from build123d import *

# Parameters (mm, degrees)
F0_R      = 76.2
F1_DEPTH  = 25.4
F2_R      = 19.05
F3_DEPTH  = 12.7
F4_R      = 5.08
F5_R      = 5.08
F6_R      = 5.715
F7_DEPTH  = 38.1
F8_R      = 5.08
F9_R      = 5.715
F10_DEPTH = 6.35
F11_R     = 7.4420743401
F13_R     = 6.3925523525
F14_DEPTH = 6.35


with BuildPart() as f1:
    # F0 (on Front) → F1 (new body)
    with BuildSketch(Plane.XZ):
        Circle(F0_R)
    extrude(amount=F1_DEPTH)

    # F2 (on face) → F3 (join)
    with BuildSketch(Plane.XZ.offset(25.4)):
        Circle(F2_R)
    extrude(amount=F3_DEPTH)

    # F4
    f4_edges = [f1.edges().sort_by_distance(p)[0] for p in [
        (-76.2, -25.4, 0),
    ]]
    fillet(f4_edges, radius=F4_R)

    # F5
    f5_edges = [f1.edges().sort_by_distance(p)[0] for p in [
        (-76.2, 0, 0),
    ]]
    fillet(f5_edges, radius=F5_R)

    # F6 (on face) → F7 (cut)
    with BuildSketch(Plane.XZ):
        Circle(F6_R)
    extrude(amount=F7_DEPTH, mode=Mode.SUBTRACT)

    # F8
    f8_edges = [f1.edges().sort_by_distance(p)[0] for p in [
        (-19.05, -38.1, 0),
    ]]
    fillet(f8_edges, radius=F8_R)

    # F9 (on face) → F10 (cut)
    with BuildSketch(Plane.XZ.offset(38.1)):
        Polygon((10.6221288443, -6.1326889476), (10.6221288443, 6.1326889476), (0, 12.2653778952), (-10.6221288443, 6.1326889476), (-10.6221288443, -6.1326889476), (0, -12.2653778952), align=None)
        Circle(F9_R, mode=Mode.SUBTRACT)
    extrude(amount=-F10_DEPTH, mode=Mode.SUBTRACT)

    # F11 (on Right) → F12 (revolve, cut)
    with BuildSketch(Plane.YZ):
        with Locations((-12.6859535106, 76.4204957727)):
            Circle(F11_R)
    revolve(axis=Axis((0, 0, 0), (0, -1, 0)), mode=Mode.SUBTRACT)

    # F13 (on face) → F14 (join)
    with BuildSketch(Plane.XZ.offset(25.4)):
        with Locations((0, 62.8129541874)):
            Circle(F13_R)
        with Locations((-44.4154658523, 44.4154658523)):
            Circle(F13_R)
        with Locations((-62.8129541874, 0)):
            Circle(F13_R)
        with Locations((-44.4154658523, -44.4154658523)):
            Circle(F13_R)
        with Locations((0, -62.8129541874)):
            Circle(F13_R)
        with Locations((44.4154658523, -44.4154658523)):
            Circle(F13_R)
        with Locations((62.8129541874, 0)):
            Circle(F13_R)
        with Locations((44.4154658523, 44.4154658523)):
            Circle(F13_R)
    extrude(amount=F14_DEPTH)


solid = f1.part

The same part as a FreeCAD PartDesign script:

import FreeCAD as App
import Part
import Sketcher
Q = App.Units.Quantity


def edges_at(feature, points):
    """Names of the edges that pass closest to the given points."""
    edges = feature.Shape.Edges
    near = lambda p: min(range(len(edges)), key=lambda i: edges[i].distToShape(Part.Vertex(*p))[0])
    return sorted({f"Edge{near(p) + 1}" for p in points})

doc = App.newDocument("Part")
body = doc.addObject("PartDesign::Body", "Body")

# Sketch on XZ plane
sketch1 = body.newObject("Sketcher::SketchObject", "Sketch")
sketch1.AttachmentSupport = (doc.getObject("XZ_Plane"), [""])
sketch1.MapMode = "FlatFace"
sketch1.addGeometry(Part.Circle(App.Vector(0, 0, 0), App.Vector(0, 0, 1), 76), False)
sketch1.addConstraint(Sketcher.Constraint("Coincident", 0, 3, -1, 1))
sketch1.addConstraint(Sketcher.Constraint("Diameter", 0, Q("6 in")))
pad1 = body.newObject("PartDesign::Pad", "Pad")
pad1.Profile = sketch1
pad1.Length = Q("1 in")

# Sketch on XZ plane
sketch2 = body.newObject("Sketcher::SketchObject", "Sketch001")
sketch2.AttachmentSupport = (doc.getObject("XZ_Plane"), [""])
sketch2.MapMode = "FlatFace"
sketch2.AttachmentOffset = App.Placement(App.Vector(0, 0, 1 * 25.4), App.Rotation())
sketch2.addGeometry(Part.Circle(App.Vector(0, 0, 0), App.Vector(0, 0, 1), 19), False)
sketch2.addConstraint(Sketcher.Constraint("Coincident", 0, 3, -1, 1))
sketch2.addConstraint(Sketcher.Constraint("Diameter", 0, Q("1.5 in")))
pad2 = body.newObject("PartDesign::Pad", "Pad001")
pad2.Profile = sketch2
pad2.Length = Q("0.5 in")
doc.recompute()

fillet = body.newObject("PartDesign::Fillet", "Fillet")
fillet.Base = (pad2, edges_at(pad2, [(-76.2, -25.4, 0)]))
fillet.Radius = Q("0.2 in")
doc.recompute()

fillet2 = body.newObject("PartDesign::Fillet", "Fillet001")
fillet2.Base = (fillet, edges_at(fillet, [(-76.2, 0, 0)]))
fillet2.Radius = Q("0.2 in")

# Sketch on XZ plane
sketch3 = body.newObject("Sketcher::SketchObject", "Sketch002")
sketch3.AttachmentSupport = (doc.getObject("XZ_Plane"), [""])
sketch3.MapMode = "FlatFace"
sketch3.addGeometry(Part.Circle(App.Vector(0, 0, 0), App.Vector(0, 0, 1), 6), False)
sketch3.addConstraint(Sketcher.Constraint("Coincident", 0, 3, -1, 1))
sketch3.addConstraint(Sketcher.Constraint("Diameter", 0, Q("0.45 in")))
pocket1 = body.newObject("PartDesign::Pocket", "Pocket")
pocket1.Profile = sketch3
pocket1.Length = Q("1.5 in")
pocket1.Reversed = True
doc.recompute()

fillet3 = body.newObject("PartDesign::Fillet", "Fillet002")
fillet3.Base = (pocket1, edges_at(pocket1, [(-19.05, -38.1, 0)]))
fillet3.Radius = Q("0.2 in")

# Sketch on XZ plane
sketch4 = body.newObject("Sketcher::SketchObject", "Sketch003")
sketch4.AttachmentSupport = (doc.getObject("XZ_Plane"), [""])
sketch4.MapMode = "FlatFace"
sketch4.AttachmentOffset = App.Placement(App.Vector(0, 0, 1.5 * 25.4), App.Rotation())
sketch4.addGeometry(Part.LineSegment(App.Vector(11, -6, 0), App.Vector(11, 6, 0)), False)
sketch4.addGeometry(Part.LineSegment(App.Vector(11, 6, 0), App.Vector(0, 12, 0)), False)
sketch4.addGeometry(Part.LineSegment(App.Vector(0, 12, 0), App.Vector(-11, 6, 0)), False)
sketch4.addGeometry(Part.LineSegment(App.Vector(-11, 6, 0), App.Vector(-11, -6, 0)), False)
sketch4.addGeometry(Part.LineSegment(App.Vector(-11, -6, 0), App.Vector(0, -12, 0)), False)
sketch4.addGeometry(Part.LineSegment(App.Vector(0, -12, 0), App.Vector(11, -6, 0)), False)
sketch4.addGeometry(Part.Circle(App.Vector(0, 0, 0), App.Vector(0, 0, 1), 6), False)
sketch4.addConstraint(Sketcher.Constraint("Coincident", 0, 2, 1, 1))
sketch4.addConstraint(Sketcher.Constraint("Coincident", 1, 2, 2, 1))
sketch4.addConstraint(Sketcher.Constraint("Coincident", 2, 2, 3, 1))
sketch4.addConstraint(Sketcher.Constraint("Coincident", 3, 2, 4, 1))
sketch4.addConstraint(Sketcher.Constraint("Coincident", 4, 2, 5, 1))
sketch4.addConstraint(Sketcher.Constraint("Coincident", 5, 2, 0, 1))
sketch4.addConstraint(Sketcher.Constraint("Vertical", 0))
sketch4.addConstraint(Sketcher.Constraint("Vertical", 3))
sketch4.addConstraint(Sketcher.Constraint("Coincident", 6, 3, -1, 1))
sketch4.addConstraint(Sketcher.Constraint("Symmetric", 0, 2, 3, 2, -1, 1))
sketch4.addConstraint(Sketcher.Constraint("Symmetric", 1, 2, 4, 2, -1, 1))
sketch4.addConstraint(Sketcher.Constraint("PointOnObject", 1, 2, -2))
sketch4.addConstraint(Sketcher.Constraint("Parallel", 2, 5))
sketch4.addConstraint(Sketcher.Constraint("Horizontal", 0, 2, 2, 2))
sketch4.addConstraint(Sketcher.Constraint("Diameter", 6, Q("0.45 in")))
sketch4.addConstraint(Sketcher.Constraint("Angle", 1, Q("150 deg")))
sketch4.addConstraint(Sketcher.Constraint("DistanceY", 0, 1, 0, 2, 12.265378))
sketch4.addConstraint(Sketcher.Constraint("DistanceX", -1, 1, 0, 2, 10.622129))
pocket2 = body.newObject("PartDesign::Pocket", "Pocket001")
pocket2.Profile = sketch4
pocket2.Length = Q("0.25 in")

# Sketch on YZ plane
sketch5 = body.newObject("Sketcher::SketchObject", "Sketch004")
sketch5.AttachmentSupport = (doc.getObject("YZ_Plane"), [""])
sketch5.MapMode = "FlatFace"
sketch5.addGeometry(Part.Circle(App.Vector(-13, 76, 0), App.Vector(0, 0, 1), 7), False)
sketch5.addConstraint(Sketcher.Constraint("Diameter", 0, 14.884149))
sketch5.addConstraint(Sketcher.Constraint("DistanceX", 0, 3, -1, 1, 12.685954))
sketch5.addConstraint(Sketcher.Constraint("DistanceY", -1, 1, 0, 3, 76.420496))
groove = body.newObject("PartDesign::Groove", "Groove")
groove.Profile = sketch5
groove.ReferenceAxis = (sketch5, ["H_Axis"])
groove.Angle = 360

# Sketch on XZ plane
sketch6 = body.newObject("Sketcher::SketchObject", "Sketch005")
sketch6.AttachmentSupport = (doc.getObject("XZ_Plane"), [""])
sketch6.MapMode = "FlatFace"
sketch6.AttachmentOffset = App.Placement(App.Vector(0, 0, 1 * 25.4), App.Rotation())
sketch6.addGeometry(Part.Circle(App.Vector(0, 63, 0), App.Vector(0, 0, 1), 6), False)
sketch6.addGeometry(Part.Circle(App.Vector(-44, 44, 0), App.Vector(0, 0, 1), 6), False)
sketch6.addGeometry(Part.Circle(App.Vector(-63, 0, 0), App.Vector(0, 0, 1), 6), False)
sketch6.addGeometry(Part.Circle(App.Vector(-44, -44, 0), App.Vector(0, 0, 1), 6), False)
sketch6.addGeometry(Part.Circle(App.Vector(0, -63, 0), App.Vector(0, 0, 1), 6), False)
sketch6.addGeometry(Part.Circle(App.Vector(44, -44, 0), App.Vector(0, 0, 1), 6), False)
sketch6.addGeometry(Part.Circle(App.Vector(63, 0, 0), App.Vector(0, 0, 1), 6), False)
sketch6.addGeometry(Part.Circle(App.Vector(44, 44, 0), App.Vector(0, 0, 1), 6), False)
sketch6.addConstraint(Sketcher.Constraint("Equal", 0, 1))
sketch6.addConstraint(Sketcher.Constraint("Equal", 1, 2))
sketch6.addConstraint(Sketcher.Constraint("Equal", 2, 3))
sketch6.addConstraint(Sketcher.Constraint("Equal", 3, 4))
sketch6.addConstraint(Sketcher.Constraint("Equal", 4, 5))
sketch6.addConstraint(Sketcher.Constraint("Equal", 5, 6))
sketch6.addConstraint(Sketcher.Constraint("Equal", 6, 7))
sketch6.addConstraint(Sketcher.Constraint("Symmetric", 0, 3, 4, 3, -1, 1))
sketch6.addConstraint(Sketcher.Constraint("Symmetric", 1, 3, 5, 3, -1, 1))
sketch6.addConstraint(Sketcher.Constraint("Symmetric", 2, 3, 6, 3, -1, 1))
sketch6.addConstraint(Sketcher.Constraint("Symmetric", 3, 3, 7, 3, -1, 1))
sketch6.addConstraint(Sketcher.Constraint("Symmetric", 3, 3, 5, 3, -2))
sketch6.addConstraint(Sketcher.Constraint("PointOnObject", 0, 3, -2))
sketch6.addConstraint(Sketcher.Constraint("PointOnObject", 2, 3, -1))
sketch6.addConstraint(Sketcher.Constraint("Diameter", 0, 12.785105))
sketch6.addConstraint(Sketcher.Constraint("DistanceY", 1, 3, 0, 3, 18.397488))
sketch6.addConstraint(Sketcher.Constraint("DistanceX", 2, 3, 1, 3, 18.397488))
sketch6.addConstraint(Sketcher.Constraint("DistanceY", 3, 3, 1, 3, 88.830932))
sketch6.addConstraint(Sketcher.Constraint("DistanceX", 3, 3, 5, 3, 88.830932))
pad3 = body.newObject("PartDesign::Pad", "Pad002")
pad3.Profile = sketch6
pad3.Length = Q("0.25 in")

doc.recompute()
